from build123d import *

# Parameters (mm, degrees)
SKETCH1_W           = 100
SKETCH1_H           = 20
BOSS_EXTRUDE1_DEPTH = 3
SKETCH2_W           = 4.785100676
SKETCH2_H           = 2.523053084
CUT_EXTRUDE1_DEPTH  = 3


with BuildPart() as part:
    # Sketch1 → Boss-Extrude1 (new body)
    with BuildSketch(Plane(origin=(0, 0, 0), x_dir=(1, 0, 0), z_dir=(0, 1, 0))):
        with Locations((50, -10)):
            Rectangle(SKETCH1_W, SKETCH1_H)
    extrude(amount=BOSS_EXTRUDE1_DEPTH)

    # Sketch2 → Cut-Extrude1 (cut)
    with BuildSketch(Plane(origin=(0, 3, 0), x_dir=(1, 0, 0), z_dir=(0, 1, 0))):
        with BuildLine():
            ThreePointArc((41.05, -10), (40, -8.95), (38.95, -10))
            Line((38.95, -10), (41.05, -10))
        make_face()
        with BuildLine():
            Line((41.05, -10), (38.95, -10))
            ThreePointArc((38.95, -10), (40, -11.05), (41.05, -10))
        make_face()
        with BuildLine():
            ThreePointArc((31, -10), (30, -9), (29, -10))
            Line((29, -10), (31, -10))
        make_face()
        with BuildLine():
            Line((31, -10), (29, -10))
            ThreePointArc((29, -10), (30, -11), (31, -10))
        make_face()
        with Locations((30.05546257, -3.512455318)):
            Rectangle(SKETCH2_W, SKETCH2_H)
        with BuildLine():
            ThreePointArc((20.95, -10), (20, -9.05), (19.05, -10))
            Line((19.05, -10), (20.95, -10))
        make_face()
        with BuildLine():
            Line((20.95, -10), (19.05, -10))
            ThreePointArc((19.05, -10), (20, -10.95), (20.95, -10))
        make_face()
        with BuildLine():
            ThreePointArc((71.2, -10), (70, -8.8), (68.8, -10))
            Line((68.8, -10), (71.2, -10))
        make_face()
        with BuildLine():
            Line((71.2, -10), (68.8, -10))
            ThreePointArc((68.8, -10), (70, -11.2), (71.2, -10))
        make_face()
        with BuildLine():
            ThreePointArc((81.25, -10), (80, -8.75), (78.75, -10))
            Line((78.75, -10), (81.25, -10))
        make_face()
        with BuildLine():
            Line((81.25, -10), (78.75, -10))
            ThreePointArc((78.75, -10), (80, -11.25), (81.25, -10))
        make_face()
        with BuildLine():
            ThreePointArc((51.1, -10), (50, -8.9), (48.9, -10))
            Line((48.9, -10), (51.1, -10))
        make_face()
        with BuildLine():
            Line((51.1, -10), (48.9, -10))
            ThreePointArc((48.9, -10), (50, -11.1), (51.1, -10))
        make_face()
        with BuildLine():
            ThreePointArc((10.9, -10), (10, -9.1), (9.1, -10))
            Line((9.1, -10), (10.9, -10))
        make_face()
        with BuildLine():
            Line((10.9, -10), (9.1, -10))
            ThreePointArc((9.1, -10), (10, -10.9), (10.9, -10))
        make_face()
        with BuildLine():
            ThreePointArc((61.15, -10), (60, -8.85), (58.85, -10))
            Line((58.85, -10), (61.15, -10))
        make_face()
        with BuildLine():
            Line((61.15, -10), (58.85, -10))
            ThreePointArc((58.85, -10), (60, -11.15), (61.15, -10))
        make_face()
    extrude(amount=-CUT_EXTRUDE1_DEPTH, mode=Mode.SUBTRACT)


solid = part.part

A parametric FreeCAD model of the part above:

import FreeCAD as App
import Part
import Sketcher
from FreeCAD import Vector

doc = App.newDocument("Part")
body = doc.addObject("PartDesign::Body", "Body")

# Sketch on XZ plane
sketch1 = body.newObject("Sketcher::SketchObject", "Sketch")
sketch1.AttachmentSupport = (doc.getObject("XZ_Plane"), [""])
sketch1.MapMode = "FlatFace"
sketch1.addGeometry(Part.LineSegment(Vector(0, 0, 0), Vector(0, 20, 0)), False)
sketch1.addGeometry(Part.LineSegment(Vector(0, 20, 0), Vector(100, 20, 0)), False)
sketch1.addGeometry(Part.LineSegment(Vector(100, 20, 0), Vector(100, 0, 0)), False)
sketch1.addGeometry(Part.LineSegment(Vector(100, 0, 0), Vector(0, 0, 0)), False)
sketch1.addConstraint(Sketcher.Constraint("Coincident", 0, 2, 1, 1))
sketch1.addConstraint(Sketcher.Constraint("Coincident", 1, 2, 2, 1))
sketch1.addConstraint(Sketcher.Constraint("Coincident", 2, 2, 3, 1))
sketch1.addConstraint(Sketcher.Constraint("Coincident", 3, 2, 0, 1))
sketch1.addConstraint(Sketcher.Constraint("Vertical", 0))
sketch1.addConstraint(Sketcher.Constraint("Horizontal", 1))
sketch1.addConstraint(Sketcher.Constraint("Vertical", 2))
sketch1.addConstraint(Sketcher.Constraint("Horizontal", 3))
sketch1.addConstraint(Sketcher.Constraint("Coincident", 3, 2, -1, 1))
sketch1.addConstraint(Sketcher.Constraint("DistanceX", 1, 1, 1, 2, 100.0))
sketch1.addConstraint(Sketcher.Constraint("DistanceY", 0, 1, 0, 2, 20.0))
pad1 = body.newObject("PartDesign::Pad", "Pad")
pad1.Profile = sketch1
pad1.Length = 3
pad1.Reversed = True

# Sketch on XZ plane
sketch2 = body.newObject("Sketcher::SketchObject", "Sketch001")
sketch2.AttachmentSupport = (doc.getObject("XZ_Plane"), [""])
sketch2.MapMode = "FlatFace"
sketch2.AttachmentOffset = App.Placement(Vector(0, 0, -3), App.Rotation())
sketch2.addGeometry(Part.Circle(Vector(40, 10, 0), Vector(0, 0, 1), 1.1), False)
sketch2.addGeometry(Part.Circle(Vector(30, 10, 0), Vector(0, 0, 1), 1), False)
sketch2.addGeometry(Part.LineSegment(Vector(27.7, 2.3, 0), Vector(27.7, 4.8, 0)), False)
sketch2.addGeometry(Part.LineSegment(Vector(27.7, 4.8, 0), Vector(32.4, 4.8, 0)), False)
sketch2.addGeometry(Part.LineSegment(Vector(32.4, 4.8, 0), Vector(32.4, 2.3, 0)), False)
sketch2.addGeometry(Part.LineSegment(Vector(32.4, 2.3, 0), Vector(27.7, 2.3, 0)), False)
sketch2.addGeometry(Part.Circle(Vector(20, 10, 0), Vector(0, 0, 1), 0.9), False)
sketch2.addGeometry(Part.Circle(Vector(70, 10, 0), Vector(0, 0, 1), 1.2), False)
sketch2.addGeometry(Part.Circle(Vector(80, 10, 0), Vector(0, 0, 1), 1.2), False)
sketch2.addGeometry(Part.Circle(Vector(50, 10, 0), Vector(0, 0, 1), 1.1), False)
sketch2.addGeometry(Part.Circle(Vector(10, 10, 0), Vector(0, 0, 1), 0.9), False)
sketch2.addGeometry(Part.Circle(Vector(60, 10, 0), Vector(0, 0, 1), 1.1), False)
sketch2.addConstraint(Sketcher.Constraint("Coincident", 2, 2, 3, 1))
sketch2.addConstraint(Sketcher.Constraint("Coincident", 3, 2, 4, 1))
sketch2.addConstraint(Sketcher.Constraint("Coincident", 4, 2, 5, 1))
sketch2.addConstraint(Sketcher.Constraint("Coincident", 5, 2, 2, 1))
sketch2.addConstraint(Sketcher.Constraint("Vertical", 2))
sketch2.addConstraint(Sketcher.Constraint("Horizontal", 3))
sketch2.addConstraint(Sketcher.Constraint("Vertical", 4))
sketch2.addConstraint(Sketcher.Constraint("Horizontal", 5))
sketch2.addConstraint(Sketcher.Constraint("Horizontal", 0, 3, 1, 3))
sketch2.addConstraint(Sketcher.Constraint("Horizontal", 1, 3, 6, 3))
sketch2.addConstraint(Sketcher.Constraint("Horizontal", 6, 3, 7, 3))
sketch2.addConstraint(Sketcher.Constraint("Horizontal", 7, 3, 8, 3))
sketch2.addConstraint(Sketcher.Constraint("Horizontal", 8, 3, 9, 3))
sketch2.addConstraint(Sketcher.Constraint("Horizontal", 9, 3, 10, 3))
sketch2.addConstraint(Sketcher.Constraint("Horizontal", 10, 3, 11, 3))
sketch2.addConstraint(Sketcher.Constraint("Diameter", 1, 2.0))
sketch2.addConstraint(Sketcher.Constraint("Diameter", 0, 2.1))
sketch2.addConstraint(Sketcher.Constraint("Diameter", 6, 1.9))
sketch2.addConstraint(Sketcher.Constraint("Diameter", 7, 2.4))
sketch2.addConstraint(Sketcher.Constraint("Diameter", 8, 2.5))
sketch2.addConstraint(Sketcher.Constraint("Diameter", 9, 2.2))
sketch2.addConstraint(Sketcher.Constraint("Diameter", 10, 1.8))
sketch2.addConstraint(Sketcher.Constraint("Diameter", 11, 2.3))
sketch2.addConstraint(Sketcher.Constraint("DistanceX", -1, 1, 0, 3, 40.0))
sketch2.addConstraint(Sketcher.Constraint("DistanceY", -1, 1, 0, 3, 10.0))
sketch2.addConstraint(Sketcher.Constraint("DistanceX", -1, 1, 1, 3, 30.0))
sketch2.addConstraint(Sketcher.Constraint("DistanceX", -1, 1, 6, 3, 20.0))
sketch2.addConstraint(Sketcher.Constraint("DistanceX", -1, 1, 7, 3, 70.0))
sketch2.addConstraint(Sketcher.Constraint("DistanceX", -1, 1, 8, 3, 80.0))
sketch2.addConstraint(Sketcher.Constraint("DistanceX", -1, 1, 9, 3, 50.0))
sketch2.addConstraint(Sketcher.Constraint("DistanceX", -1, 1, 10, 3, 10.0))
sketch2.addConstraint(Sketcher.Constraint("DistanceX", -1, 1, 11, 3, 60.0))
sketch2.addConstraint(Sketcher.Constraint("DistanceX", 3, 1, 3, 2, 4.785101))
sketch2.addConstraint(Sketcher.Constraint("DistanceY", 2, 1, 2, 2, 2.523053))
sketch2.addConstraint(Sketcher.Constraint("DistanceY", -1, 1, 2, 2, 4.773982))
sketch2.addConstraint(Sketcher.Constraint("DistanceX", -1, 1, 2, 2, 27.662912))
pocket1 = body.newObject("PartDesign::Pocket", "Pocket")
pocket1.Profile = sketch2
pocket1.Length = 3
pocket1.Reversed = True

doc.recompute()
